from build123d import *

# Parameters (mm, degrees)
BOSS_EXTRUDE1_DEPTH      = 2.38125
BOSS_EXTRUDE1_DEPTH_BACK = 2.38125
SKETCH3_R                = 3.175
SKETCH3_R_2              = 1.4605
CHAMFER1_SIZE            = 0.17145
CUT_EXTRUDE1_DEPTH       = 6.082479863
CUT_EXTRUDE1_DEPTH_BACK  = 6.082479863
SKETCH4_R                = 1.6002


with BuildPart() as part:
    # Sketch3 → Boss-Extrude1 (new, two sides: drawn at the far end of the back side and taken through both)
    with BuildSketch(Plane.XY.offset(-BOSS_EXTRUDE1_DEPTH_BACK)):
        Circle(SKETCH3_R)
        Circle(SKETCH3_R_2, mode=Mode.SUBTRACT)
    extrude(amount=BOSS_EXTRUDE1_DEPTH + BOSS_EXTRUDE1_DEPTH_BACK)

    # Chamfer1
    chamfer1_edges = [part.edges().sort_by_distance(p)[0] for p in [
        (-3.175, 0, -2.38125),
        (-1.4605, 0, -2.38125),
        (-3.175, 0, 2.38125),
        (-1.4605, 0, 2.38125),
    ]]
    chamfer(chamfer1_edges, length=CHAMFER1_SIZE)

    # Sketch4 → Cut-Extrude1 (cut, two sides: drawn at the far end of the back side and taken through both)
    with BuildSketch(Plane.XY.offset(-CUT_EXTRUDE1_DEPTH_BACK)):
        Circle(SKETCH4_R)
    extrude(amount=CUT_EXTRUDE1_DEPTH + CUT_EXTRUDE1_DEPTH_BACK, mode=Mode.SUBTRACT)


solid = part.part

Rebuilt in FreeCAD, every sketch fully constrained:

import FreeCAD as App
import Part
import Sketcher
from FreeCAD import Vector
Q = App.Units.Quantity


def edges_at(feature, points):
    """Names of the edges that pass closest to the given points."""
    edges = feature.Shape.Edges
    near = lambda p: min(range(len(edges)), key=lambda i: edges[i].distToShape(Part.Vertex(*p))[0])
    return sorted({f"Edge{near(p) + 1}" for p in points})

doc = App.newDocument("Part")
body = doc.addObject("PartDesign::Body", "Body")

sketch1 = body.newObject("Sketcher::SketchObject", "Sketch")
sketch1.AttachmentSupport = (doc.getObject("XY_Plane"), [""])
sketch1.MapMode = "FlatFace"
sketch1.addGeometry([
    Part.Circle(Vector(0, 0, 0), Vector(0, 0, 1), 3.175),
    Part.Circle(Vector(0, 0, 0), Vector(0, 0, 1), 1.4605),
], False)
sketch1.addConstraint([
    Sketcher.Constraint("Coincident", 0, 3, -1, 1),
    Sketcher.Constraint("Coincident", 1, 3, -1, 1),
    Sketcher.Constraint("Diameter", 0, Q("0.25 in")),
    Sketcher.Constraint("Diameter", 1, Q("0.115 in")),
])
pad1 = body.newObject("PartDesign::Pad", "Pad")
pad1.Profile = sketch1
pad1.Type = "TwoLengths"
pad1.Length = Q("0.09375 in")
pad1.Length2 = Q("0.09375 in")
doc.recompute()

chamfer = body.newObject("PartDesign::Chamfer", "Chamfer")
chamfer.Base = (pad1, edges_at(pad1, [
    (-3.175, 0, -2.381),
    (-1.46, 0, -2.381),
    (-3.175, 0, 2.381),
    (-1.46, 0, 2.381),
]))
chamfer.Size = 0.17145

sketch2 = body.newObject("Sketcher::SketchObject", "Sketch001")
sketch2.AttachmentSupport = (doc.getObject("XY_Plane"), [""])
sketch2.MapMode = "FlatFace"
sketch2.addGeometry(Part.Circle(Vector(0, 0, 0), Vector(0, 0, 1), 1.6002), False)
sketch2.addConstraint([
    Sketcher.Constraint("Coincident", 0, 3, -1, 1),
    Sketcher.Constraint("Diameter", 0, Q("0.126 in")),
])
pocket1 = body.newObject("PartDesign::Pocket", "Pocket")
pocket1.Profile = sketch2
pocket1.Type = "ThroughAll"
pocket1.Midplane = True

doc.recompute()
